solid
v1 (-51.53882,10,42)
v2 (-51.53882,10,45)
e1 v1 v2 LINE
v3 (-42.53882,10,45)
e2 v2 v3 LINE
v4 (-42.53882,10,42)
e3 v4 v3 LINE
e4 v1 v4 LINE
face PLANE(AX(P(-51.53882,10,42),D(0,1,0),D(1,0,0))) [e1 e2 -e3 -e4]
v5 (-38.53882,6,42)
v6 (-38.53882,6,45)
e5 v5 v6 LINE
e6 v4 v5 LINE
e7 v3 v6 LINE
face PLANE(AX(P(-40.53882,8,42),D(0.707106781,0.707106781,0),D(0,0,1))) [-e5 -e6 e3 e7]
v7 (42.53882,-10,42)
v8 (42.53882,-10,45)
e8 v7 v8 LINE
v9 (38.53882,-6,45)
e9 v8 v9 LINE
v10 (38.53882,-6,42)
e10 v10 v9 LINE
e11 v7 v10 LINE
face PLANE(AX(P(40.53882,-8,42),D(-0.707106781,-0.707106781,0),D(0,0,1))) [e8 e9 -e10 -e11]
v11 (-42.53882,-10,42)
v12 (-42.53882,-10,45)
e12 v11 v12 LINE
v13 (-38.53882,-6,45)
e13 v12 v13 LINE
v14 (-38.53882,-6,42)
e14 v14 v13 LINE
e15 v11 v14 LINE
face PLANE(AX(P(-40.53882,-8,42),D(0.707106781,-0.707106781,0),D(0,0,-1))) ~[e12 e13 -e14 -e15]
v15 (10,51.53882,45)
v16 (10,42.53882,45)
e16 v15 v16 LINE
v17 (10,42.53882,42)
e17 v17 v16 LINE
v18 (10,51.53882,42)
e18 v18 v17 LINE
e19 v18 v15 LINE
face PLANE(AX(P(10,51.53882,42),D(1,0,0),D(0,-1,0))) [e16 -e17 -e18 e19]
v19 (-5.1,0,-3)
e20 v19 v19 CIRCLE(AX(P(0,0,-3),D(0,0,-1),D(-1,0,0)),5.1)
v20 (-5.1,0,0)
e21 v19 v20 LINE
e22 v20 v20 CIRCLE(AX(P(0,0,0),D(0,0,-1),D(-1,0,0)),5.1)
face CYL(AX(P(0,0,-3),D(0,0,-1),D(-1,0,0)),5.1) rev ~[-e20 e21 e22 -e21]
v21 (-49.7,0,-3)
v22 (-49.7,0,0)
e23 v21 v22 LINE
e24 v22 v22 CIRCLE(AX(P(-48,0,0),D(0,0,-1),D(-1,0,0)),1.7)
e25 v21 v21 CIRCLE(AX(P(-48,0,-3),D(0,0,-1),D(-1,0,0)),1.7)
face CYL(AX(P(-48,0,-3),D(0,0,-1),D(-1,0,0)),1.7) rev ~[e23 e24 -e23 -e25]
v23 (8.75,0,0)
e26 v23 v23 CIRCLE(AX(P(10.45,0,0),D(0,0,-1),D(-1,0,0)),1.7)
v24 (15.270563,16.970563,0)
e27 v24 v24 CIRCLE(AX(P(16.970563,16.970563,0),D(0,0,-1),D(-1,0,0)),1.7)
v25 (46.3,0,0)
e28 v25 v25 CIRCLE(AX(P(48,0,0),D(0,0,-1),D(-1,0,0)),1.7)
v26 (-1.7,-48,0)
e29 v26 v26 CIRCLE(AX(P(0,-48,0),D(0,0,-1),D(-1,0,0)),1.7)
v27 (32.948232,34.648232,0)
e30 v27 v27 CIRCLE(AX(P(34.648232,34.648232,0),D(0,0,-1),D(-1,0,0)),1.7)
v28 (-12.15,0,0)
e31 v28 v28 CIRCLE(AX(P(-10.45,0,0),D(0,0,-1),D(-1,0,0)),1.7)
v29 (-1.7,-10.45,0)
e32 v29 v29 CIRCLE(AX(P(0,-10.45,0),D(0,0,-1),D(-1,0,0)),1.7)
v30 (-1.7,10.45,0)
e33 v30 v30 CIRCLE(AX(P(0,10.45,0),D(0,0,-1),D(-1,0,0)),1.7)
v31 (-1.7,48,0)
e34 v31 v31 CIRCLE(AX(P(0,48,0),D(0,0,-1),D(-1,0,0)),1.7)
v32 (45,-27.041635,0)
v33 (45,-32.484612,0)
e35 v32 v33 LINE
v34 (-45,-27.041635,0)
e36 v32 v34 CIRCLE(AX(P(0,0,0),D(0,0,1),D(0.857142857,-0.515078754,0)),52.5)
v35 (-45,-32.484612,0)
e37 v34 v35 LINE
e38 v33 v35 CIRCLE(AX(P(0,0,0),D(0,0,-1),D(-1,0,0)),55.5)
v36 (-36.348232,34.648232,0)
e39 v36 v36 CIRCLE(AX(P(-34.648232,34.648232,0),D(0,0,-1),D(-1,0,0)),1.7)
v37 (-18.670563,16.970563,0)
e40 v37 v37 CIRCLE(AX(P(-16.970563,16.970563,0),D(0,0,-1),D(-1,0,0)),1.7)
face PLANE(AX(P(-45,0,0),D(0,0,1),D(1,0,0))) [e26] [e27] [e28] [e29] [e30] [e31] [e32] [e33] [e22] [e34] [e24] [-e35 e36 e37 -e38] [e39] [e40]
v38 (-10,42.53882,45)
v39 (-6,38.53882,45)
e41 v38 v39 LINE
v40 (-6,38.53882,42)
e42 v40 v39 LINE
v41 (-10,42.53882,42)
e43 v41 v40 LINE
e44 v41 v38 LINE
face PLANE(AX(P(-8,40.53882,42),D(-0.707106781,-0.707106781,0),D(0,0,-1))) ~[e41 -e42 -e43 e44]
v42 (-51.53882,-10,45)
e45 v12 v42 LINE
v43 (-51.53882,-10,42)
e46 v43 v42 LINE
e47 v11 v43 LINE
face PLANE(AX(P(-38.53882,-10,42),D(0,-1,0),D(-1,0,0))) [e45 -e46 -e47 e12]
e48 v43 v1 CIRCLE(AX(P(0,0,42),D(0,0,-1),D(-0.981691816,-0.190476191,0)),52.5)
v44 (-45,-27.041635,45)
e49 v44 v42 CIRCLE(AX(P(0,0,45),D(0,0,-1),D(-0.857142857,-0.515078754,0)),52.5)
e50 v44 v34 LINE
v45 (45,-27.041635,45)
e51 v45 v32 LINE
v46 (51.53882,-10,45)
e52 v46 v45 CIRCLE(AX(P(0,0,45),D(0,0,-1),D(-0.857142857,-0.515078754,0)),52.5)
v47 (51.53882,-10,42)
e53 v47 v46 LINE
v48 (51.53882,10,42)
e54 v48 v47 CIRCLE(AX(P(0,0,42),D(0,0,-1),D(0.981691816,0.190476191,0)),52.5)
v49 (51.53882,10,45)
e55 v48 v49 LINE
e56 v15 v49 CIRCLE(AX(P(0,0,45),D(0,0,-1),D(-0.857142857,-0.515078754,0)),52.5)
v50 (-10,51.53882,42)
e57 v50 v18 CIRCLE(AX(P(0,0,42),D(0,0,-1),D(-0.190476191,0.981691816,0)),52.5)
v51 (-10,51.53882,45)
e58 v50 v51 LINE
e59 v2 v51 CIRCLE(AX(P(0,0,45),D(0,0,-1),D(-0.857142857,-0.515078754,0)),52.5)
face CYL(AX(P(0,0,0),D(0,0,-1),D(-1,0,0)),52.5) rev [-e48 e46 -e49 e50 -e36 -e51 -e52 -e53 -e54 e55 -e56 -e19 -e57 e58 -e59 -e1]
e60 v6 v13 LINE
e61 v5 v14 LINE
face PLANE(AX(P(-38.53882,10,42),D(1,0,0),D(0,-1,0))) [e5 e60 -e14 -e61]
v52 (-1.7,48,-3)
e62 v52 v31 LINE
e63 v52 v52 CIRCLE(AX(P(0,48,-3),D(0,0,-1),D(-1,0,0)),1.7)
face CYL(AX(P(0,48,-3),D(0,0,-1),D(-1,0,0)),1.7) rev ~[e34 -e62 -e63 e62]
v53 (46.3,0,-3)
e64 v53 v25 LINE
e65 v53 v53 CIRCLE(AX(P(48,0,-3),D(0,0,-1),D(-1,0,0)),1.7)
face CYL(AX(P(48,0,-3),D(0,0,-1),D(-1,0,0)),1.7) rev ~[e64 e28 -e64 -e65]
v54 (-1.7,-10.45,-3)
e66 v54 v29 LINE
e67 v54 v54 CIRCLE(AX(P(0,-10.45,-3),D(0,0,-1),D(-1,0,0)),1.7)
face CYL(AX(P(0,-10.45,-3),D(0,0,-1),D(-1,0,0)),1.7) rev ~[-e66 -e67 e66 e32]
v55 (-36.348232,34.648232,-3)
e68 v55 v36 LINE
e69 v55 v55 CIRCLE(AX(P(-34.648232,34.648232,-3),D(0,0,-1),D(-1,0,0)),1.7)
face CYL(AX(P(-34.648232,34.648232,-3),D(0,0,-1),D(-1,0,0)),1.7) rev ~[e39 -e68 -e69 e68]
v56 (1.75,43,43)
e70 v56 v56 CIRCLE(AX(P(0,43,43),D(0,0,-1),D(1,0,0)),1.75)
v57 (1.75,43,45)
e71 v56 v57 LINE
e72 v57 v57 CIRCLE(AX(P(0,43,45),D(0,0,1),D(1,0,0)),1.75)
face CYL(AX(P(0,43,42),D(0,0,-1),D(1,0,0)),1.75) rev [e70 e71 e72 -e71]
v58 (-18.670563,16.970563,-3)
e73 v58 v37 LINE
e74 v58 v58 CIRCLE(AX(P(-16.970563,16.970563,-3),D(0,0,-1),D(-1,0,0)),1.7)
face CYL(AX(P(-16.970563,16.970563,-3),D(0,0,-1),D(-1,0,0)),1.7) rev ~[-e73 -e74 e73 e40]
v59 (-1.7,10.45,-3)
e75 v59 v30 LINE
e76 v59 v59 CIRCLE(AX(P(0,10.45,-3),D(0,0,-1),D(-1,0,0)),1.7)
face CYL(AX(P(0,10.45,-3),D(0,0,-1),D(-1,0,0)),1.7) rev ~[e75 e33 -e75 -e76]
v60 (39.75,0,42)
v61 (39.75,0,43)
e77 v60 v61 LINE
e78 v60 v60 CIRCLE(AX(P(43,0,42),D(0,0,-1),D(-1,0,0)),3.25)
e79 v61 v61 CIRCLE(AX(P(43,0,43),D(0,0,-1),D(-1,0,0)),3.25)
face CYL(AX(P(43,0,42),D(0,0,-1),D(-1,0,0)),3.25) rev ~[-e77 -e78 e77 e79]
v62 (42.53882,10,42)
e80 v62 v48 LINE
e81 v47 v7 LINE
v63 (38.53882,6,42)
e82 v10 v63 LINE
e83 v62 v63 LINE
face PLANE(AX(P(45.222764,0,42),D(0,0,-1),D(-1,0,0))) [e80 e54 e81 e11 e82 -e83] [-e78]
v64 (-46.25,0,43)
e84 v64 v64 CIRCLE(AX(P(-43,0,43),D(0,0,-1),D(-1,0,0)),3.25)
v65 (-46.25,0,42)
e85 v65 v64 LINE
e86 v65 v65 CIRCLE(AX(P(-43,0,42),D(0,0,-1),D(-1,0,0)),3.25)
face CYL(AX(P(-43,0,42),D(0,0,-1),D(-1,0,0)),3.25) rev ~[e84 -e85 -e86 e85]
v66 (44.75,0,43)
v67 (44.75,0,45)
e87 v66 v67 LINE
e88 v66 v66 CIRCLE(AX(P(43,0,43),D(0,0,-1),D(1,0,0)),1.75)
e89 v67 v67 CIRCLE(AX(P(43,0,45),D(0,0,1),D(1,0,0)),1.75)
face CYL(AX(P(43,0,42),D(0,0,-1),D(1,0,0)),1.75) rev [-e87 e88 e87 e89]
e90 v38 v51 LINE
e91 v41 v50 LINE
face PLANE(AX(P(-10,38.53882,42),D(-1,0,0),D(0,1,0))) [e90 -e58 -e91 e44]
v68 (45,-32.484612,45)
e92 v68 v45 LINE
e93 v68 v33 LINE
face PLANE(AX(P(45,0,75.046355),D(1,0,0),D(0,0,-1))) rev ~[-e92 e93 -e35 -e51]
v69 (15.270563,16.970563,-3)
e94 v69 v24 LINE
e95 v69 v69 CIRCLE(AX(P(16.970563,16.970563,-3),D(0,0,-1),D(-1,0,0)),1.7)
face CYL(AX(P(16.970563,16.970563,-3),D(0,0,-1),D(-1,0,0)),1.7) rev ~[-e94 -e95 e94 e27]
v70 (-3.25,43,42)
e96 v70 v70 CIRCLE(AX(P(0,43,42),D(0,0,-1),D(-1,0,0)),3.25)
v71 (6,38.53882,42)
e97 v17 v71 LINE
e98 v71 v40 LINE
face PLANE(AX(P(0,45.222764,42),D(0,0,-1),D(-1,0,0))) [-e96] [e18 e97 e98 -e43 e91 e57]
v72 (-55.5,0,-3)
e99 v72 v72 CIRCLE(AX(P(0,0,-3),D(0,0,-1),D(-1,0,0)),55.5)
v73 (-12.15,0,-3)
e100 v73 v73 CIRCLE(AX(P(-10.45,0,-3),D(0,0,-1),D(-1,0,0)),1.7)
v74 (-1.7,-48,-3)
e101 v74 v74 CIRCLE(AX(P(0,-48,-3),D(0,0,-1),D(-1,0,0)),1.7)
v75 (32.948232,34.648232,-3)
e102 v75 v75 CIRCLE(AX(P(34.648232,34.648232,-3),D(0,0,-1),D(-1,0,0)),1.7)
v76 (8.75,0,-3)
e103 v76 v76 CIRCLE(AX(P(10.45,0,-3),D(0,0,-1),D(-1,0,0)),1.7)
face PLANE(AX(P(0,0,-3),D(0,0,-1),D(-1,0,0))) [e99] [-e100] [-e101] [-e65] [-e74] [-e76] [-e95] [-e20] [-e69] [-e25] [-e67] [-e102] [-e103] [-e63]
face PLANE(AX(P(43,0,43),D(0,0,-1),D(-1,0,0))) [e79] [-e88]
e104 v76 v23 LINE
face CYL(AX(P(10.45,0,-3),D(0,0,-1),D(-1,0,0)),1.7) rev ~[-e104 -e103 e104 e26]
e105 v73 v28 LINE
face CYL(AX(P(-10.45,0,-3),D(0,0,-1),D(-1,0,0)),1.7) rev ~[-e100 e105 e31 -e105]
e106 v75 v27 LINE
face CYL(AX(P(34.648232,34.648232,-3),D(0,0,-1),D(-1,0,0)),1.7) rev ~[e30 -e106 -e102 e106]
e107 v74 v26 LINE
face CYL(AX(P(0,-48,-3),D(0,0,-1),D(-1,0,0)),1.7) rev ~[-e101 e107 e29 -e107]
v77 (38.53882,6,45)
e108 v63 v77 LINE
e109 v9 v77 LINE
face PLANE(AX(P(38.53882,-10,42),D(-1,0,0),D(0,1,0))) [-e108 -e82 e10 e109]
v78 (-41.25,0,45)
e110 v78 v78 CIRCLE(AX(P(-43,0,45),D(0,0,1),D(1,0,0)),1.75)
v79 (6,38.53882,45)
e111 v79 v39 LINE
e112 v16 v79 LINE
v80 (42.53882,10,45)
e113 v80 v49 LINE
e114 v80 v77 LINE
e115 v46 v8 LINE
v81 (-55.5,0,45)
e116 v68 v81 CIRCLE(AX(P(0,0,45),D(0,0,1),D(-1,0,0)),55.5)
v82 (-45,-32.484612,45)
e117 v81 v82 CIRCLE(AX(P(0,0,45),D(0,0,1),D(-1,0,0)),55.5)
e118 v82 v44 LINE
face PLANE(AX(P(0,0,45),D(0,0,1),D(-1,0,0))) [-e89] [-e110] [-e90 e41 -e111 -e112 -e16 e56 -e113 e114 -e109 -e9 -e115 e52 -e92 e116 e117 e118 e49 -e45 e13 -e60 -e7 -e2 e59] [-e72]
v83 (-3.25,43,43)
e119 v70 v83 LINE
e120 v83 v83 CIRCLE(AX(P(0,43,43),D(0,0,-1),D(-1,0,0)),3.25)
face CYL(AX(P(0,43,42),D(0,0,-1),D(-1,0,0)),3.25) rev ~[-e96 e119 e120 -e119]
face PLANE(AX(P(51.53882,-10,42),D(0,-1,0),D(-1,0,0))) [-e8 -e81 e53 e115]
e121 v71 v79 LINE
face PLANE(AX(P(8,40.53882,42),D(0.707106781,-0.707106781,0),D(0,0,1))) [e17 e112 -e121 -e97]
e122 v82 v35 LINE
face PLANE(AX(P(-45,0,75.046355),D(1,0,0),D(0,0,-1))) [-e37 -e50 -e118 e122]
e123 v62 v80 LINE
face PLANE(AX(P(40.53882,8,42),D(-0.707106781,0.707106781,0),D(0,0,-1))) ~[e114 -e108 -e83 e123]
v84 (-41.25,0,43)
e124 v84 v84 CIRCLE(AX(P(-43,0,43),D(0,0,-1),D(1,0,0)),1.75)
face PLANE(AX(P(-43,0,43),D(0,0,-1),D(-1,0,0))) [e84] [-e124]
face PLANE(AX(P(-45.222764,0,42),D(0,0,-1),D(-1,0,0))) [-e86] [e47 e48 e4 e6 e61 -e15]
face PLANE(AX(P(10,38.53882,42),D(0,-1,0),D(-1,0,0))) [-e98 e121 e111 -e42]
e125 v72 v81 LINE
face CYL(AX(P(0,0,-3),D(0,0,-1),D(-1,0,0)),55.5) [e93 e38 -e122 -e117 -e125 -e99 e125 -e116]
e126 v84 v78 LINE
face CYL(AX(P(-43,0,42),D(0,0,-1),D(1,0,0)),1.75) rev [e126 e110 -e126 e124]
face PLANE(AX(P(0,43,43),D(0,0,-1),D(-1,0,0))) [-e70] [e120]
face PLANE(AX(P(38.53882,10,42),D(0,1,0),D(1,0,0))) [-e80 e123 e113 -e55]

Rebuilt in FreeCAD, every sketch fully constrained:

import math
import FreeCAD as App
import Part
import Sketcher
from FreeCAD import Vector
Q = App.Units.Quantity


def edges_at(feature, points):
    """Names of the edges that pass closest to the given points."""
    edges = feature.Shape.Edges
    near = lambda p: min(range(len(edges)), key=lambda i: edges[i].distToShape(Part.Vertex(*p))[0])
    return sorted({f"Edge{near(p) + 1}" for p in points})


def add_polygon(sketch, points):
    """Adds a closed chain of lines whose ends are joined by coincident constraints."""
    first, n = sketch.GeometryCount, len(points)
    for a, b in zip(points, points[1:] + points[:1]):
        sketch.addGeometry(Part.LineSegment(App.Vector(*a, 0), App.Vector(*b, 0)), False)
    for i in range(n):
        sketch.addConstraint(Sketcher.Constraint("Coincident", first + i, 2, first + (i + 1) % n, 1))

doc = App.newDocument("Part")
body = doc.addObject("PartDesign::Body", "Body")

# Sketch on XY plane
sketch1 = body.newObject("Sketcher::SketchObject", "Sketch")
sketch1.AttachmentSupport = (doc.getObject("XY_Plane"), [""])
sketch1.MapMode = "FlatFace"
sketch1.addGeometry([
    Part.Circle(Vector(0, 0, 0), Vector(0, 0, 1), 56),
    Part.Circle(Vector(0, 0, 0), Vector(0, 0, 1), 52),
], False)
sketch1.addConstraint([
    Sketcher.Constraint("Coincident", 0, 3, -1, 1),
    Sketcher.Constraint("Coincident", 1, 3, -1, 1),
    Sketcher.Constraint("Diameter", 0, Q("111 mm")),
    Sketcher.Constraint("Diameter", 1, Q("105 mm")),
])
pad1 = body.newObject("PartDesign::Pad", "Pad")
pad1.Profile = sketch1
pad1.Length = 45

# Sketch on XY plane
sketch2 = body.newObject("Sketcher::SketchObject", "Sketch001")
sketch2.AttachmentSupport = (doc.getObject("XY_Plane"), [""])
sketch2.MapMode = "FlatFace"
sketch2.AttachmentOffset = App.Placement(Vector(0, 0, -3), App.Rotation())
sketch2.addGeometry([
    Part.Circle(Vector(0, 0, 0), Vector(0, 0, 1), 55.5),  # 0
    Part.Circle(Vector(0, -10.4, 0), Vector(0, 0, 1), 1.7),  # 1
    Part.Circle(Vector(10.4, 0, 0), Vector(0, 0, 1), 1.7),  # 2
    Part.Circle(Vector(0, 0, 0), Vector(0, 0, 1), 5.1),  # 3
    Part.Circle(Vector(-10.4, 0, 0), Vector(0, 0, 1), 1.7),  # 4
    Part.Circle(Vector(0, 10.4, 0), Vector(0, 0, 1), 1.7),  # 5
], False)
sketch2.addConstraint([
    Sketcher.Constraint("Coincident", 0, 3, -1, 1),
    Sketcher.Constraint("Coincident", 3, 3, -1, 1),
    Sketcher.Constraint("Equal", 1, 2),
    Sketcher.Constraint("Equal", 2, 4),
    Sketcher.Constraint("Equal", 4, 5),
    Sketcher.Constraint("Symmetric", 2, 3, 4, 3, -1, 1),
    Sketcher.Constraint("Symmetric", 1, 3, 5, 3, -1, 1),
    Sketcher.Constraint("PointOnObject", 1, 3, -2),
    Sketcher.Constraint("PointOnObject", 2, 3, -1),
    Sketcher.Constraint("Diameter", 0, Q("111 mm")),
    Sketcher.Constraint("Diameter", 1, Q("3.4 mm")),
    Sketcher.Constraint("Diameter", 3, Q("10.2 mm")),
    Sketcher.Constraint("DistanceX", 4, 3, 2, 3, Q("20.9 mm")),
    Sketcher.Constraint("DistanceY", 1, 3, 5, 3, Q("20.9 mm")),
])
pad2 = body.newObject("PartDesign::Pad", "Pad001")
pad2.Profile = sketch2
pad2.Length = 3

# Sketch on XZ plane
sketch3 = body.newObject("Sketcher::SketchObject", "Sketch002")
sketch3.AttachmentSupport = (doc.getObject("XZ_Plane"), [""])
sketch3.MapMode = "FlatFace"
add_polygon(sketch3, [(-45, 0), (-45, 75), (45, 75), (45, 0)])  # lines 0-3
sketch3.addConstraint([
    Sketcher.Constraint("Vertical", 0),
    Sketcher.Constraint("Horizontal", 1),
    Sketcher.Constraint("Vertical", 2),
    Sketcher.Constraint("Horizontal", 3),
    Sketcher.Constraint("Symmetric", 2, 2, 3, 2, -1, 1),
    Sketcher.Constraint("DistanceX", 1, 1, 1, 2, Q("90 mm")),
    Sketcher.Constraint("DistanceY", 0, 1, 0, 2, Q("75.046355 mm")),
])
pocket1 = body.newObject("PartDesign::Pocket", "Pocket")
pocket1.Profile = sketch3
pocket1.Type = "ThroughAll"
pocket1.Reversed = True

# Sketch on XY plane
sketch4 = body.newObject("Sketcher::SketchObject", "Sketch003")
sketch4.AttachmentSupport = (doc.getObject("XY_Plane"), [""])
sketch4.MapMode = "FlatFace"
sketch4.AttachmentOffset = App.Placement(Vector(0, 0, 42), App.Rotation())
sketch4.addGeometry([
    Part.LineSegment(Vector(38.5, -10, 0), Vector(51.5, -10, 0)),  # 0
    Part.ArcOfCircle(Part.Circle(Vector(0, 0, 0), Vector(0, 0, 1), 52.5), math.radians(-11), math.radians(11)),  # 1
    Part.LineSegment(Vector(51.5, 10, 0), Vector(38.5, 10, 0)),  # 2
    Part.LineSegment(Vector(38.5, 10, 0), Vector(38.5, -10, 0)),  # 3
    Part.Circle(Vector(43, 0, 0), Vector(0, 0, 1), 1.8),  # 4
    Part.LineSegment(Vector(-38.5, 10, 0), Vector(-51.5, 10, 0)),  # 5
    Part.ArcOfCircle(Part.Circle(Vector(0, 0, 0), Vector(0, 0, 1), 52.5), math.radians(169), math.radians(191)),  # 6
    Part.LineSegment(Vector(-51.5, -10, 0), Vector(-38.5, -10, 0)),  # 7
    Part.LineSegment(Vector(-38.5, -10, 0), Vector(-38.5, 10, 0)),  # 8
    Part.Circle(Vector(-43, 0, 0), Vector(0, 0, 1), 1.8),  # 9
    Part.LineSegment(Vector(10, 38.5, 0), Vector(10, 51.5, 0)),  # 10
    Part.ArcOfCircle(Part.Circle(Vector(0, 0, 0), Vector(0, 0, 1), 52.5), math.radians(79), math.radians(101)),  # 11
    Part.LineSegment(Vector(-10, 51.5, 0), Vector(-10, 38.5, 0)),  # 12
    Part.LineSegment(Vector(-10, 38.5, 0), Vector(10, 38.5, 0)),  # 13
    Part.Circle(Vector(0, 43, 0), Vector(0, 0, 1), 1.8),  # 14
], False)
sketch4.addConstraint([
    Sketcher.Constraint("Coincident", 0, 2, 1, 1),
    Sketcher.Constraint("Coincident", 1, 2, 2, 1),
    Sketcher.Constraint("Coincident", 2, 2, 3, 1),
    Sketcher.Constraint("Coincident", 3, 2, 0, 1),
    Sketcher.Constraint("Coincident", 5, 2, 6, 1),
    Sketcher.Constraint("Coincident", 6, 2, 7, 1),
    Sketcher.Constraint("Coincident", 7, 2, 8, 1),
    Sketcher.Constraint("Coincident", 8, 2, 5, 1),
    Sketcher.Constraint("Coincident", 10, 2, 11, 1),
    Sketcher.Constraint("Coincident", 11, 2, 12, 1),
    Sketcher.Constraint("Coincident", 12, 2, 13, 1),
    Sketcher.Constraint("Coincident", 13, 2, 10, 1),
    Sketcher.Constraint("Horizontal", 0),
    Sketcher.Constraint("Horizontal", 2),
    Sketcher.Constraint("Vertical", 3),
    Sketcher.Constraint("Horizontal", 5),
    Sketcher.Constraint("Horizontal", 7),
    Sketcher.Constraint("Vertical", 8),
    Sketcher.Constraint("Vertical", 10),
    Sketcher.Constraint("Vertical", 12),
    Sketcher.Constraint("Horizontal", 13),
    Sketcher.Constraint("Coincident", 1, 3, -1, 1),
    Sketcher.Constraint("Coincident", 6, 3, -1, 1),
    Sketcher.Constraint("Coincident", 11, 3, -1, 1),
    Sketcher.Constraint("Equal", 1, 6),
    Sketcher.Constraint("Equal", 4, 9),
    Sketcher.Constraint("Equal", 6, 11),
    Sketcher.Constraint("Equal", 9, 14),
    Sketcher.Constraint("Symmetric", 4, 3, 9, 3, -1, 1),
    Sketcher.Constraint("Symmetric", 2, 2, 7, 2, -1, 1),
    Sketcher.Constraint("PointOnObject", 4, 3, -1),
    Sketcher.Constraint("PointOnObject", 14, 3, -2),
    Sketcher.Constraint("Horizontal", 2, 2, 5, 2),
    Sketcher.Constraint("Horizontal", 3, 2, 6, 2),
    Sketcher.Constraint("Horizontal", 10, 2, 11, 2),
    Sketcher.Constraint("Equal", 13, 3),
    Sketcher.Constraint("Equal", 7, 10),
    Sketcher.Constraint("Diameter", 4, Q("3.5 mm")),
    Sketcher.Constraint("Radius", 1, Q("52.5 mm")),
    Sketcher.Constraint("DistanceX", 0, 1, 0, 2, Q("13 mm")),
    Sketcher.Constraint("DistanceX", 13, 1, 13, 2, Q("20 mm")),
    Sketcher.Constraint("DistanceX", -1, 1, 4, 3, Q("43 mm")),
    Sketcher.Constraint("DistanceY", -1, 1, 14, 3, Q("43 mm")),
])
pad3 = body.newObject("PartDesign::Pad", "Pad002")
pad3.Profile = sketch4
pad3.Length = 3
doc.recompute()

chamfer = body.newObject("PartDesign::Chamfer", "Chamfer")
chamfer.Base = (pad3, edges_at(pad3, [
    (38.539, -10, 43.5),
    (38.539, 10, 43.5),
    (-38.539, 10, 43.5),
    (-38.539, -10, 43.5),
    (10, 38.539, 43.5),
    (-10, 38.539, 43.5),
]))
chamfer.Size = 4

# Sketch on XY plane
sketch5 = body.newObject("Sketcher::SketchObject", "Sketch004")
sketch5.AttachmentSupport = (doc.getObject("XY_Plane"), [""])
sketch5.MapMode = "FlatFace"
sketch5.AttachmentOffset = App.Placement(Vector(0, 0, -3), App.Rotation())
sketch5.addGeometry([
    Part.Circle(Vector(-34.6, 34.6, 0), Vector(0, 0, 1), 1.7),  # 0
    Part.Circle(Vector(-17, 17, 0), Vector(0, 0, 1), 1.7),  # 1
    Part.Circle(Vector(17, 17, 0), Vector(0, 0, 1), 1.7),  # 2
    Part.Circle(Vector(34.6, 34.6, 0), Vector(0, 0, 1), 1.7),  # 3
    Part.Circle(Vector(0, -48, 0), Vector(0, 0, 1), 1.7),  # 4
    Part.Circle(Vector(48, 0, 0), Vector(0, 0, 1), 1.7),  # 5
    Part.Circle(Vector(0, 48, 0), Vector(0, 0, 1), 1.7),  # 6
    Part.Circle(Vector(-48, 0, 0), Vector(0, 0, 1), 1.7),  # 7
], False)
sketch5.addConstraint([
    Sketcher.Constraint("Equal", 0, 1),
    Sketcher.Constraint("Equal", 1, 2),
    Sketcher.Constraint("Equal", 2, 3),
    Sketcher.Constraint("Equal", 3, 4),
    Sketcher.Constraint("Equal", 4, 5),
    Sketcher.Constraint("Equal", 5, 6),
    Sketcher.Constraint("Equal", 6, 7),
    Sketcher.Constraint("Symmetric", 4, 3, 6, 3, -1, 1),
    Sketcher.Constraint("Symmetric", 5, 3, 7, 3, -1, 1),
    Sketcher.Constraint("Symmetric", 1, 3, 2, 3, -2),
    Sketcher.Constraint("Symmetric", 0, 3, 3, 3, -2),
    Sketcher.Constraint("PointOnObject", 4, 3, -2),
    Sketcher.Constraint("PointOnObject", 5, 3, -1),
    Sketcher.Constraint("Diameter", 0, Q("3.4 mm")),
    Sketcher.Constraint("DistanceY", 4, 3, -1, 1, Q("48 mm")),
    Sketcher.Constraint("DistanceX", -1, 1, 5, 3, Q("48 mm")),
    Sketcher.Constraint("DistanceX", 0, 3, 1, 3, Q("17.67767 mm")),
    Sketcher.Constraint("DistanceY", 1, 3, 0, 3, Q("17.67767 mm")),
    Sketcher.Constraint("DistanceX", 0, 3, -1, 1, Q("34.648232 mm")),
    Sketcher.Constraint("DistanceY", -1, 1, 0, 3, Q("34.648232 mm")),
])
pocket2 = body.newObject("PartDesign::Pocket", "Pocket001")
pocket2.Profile = sketch5
pocket2.Length = 10
pocket2.Reversed = True

# Sketch on XY plane
sketch6 = body.newObject("Sketcher::SketchObject", "Sketch005")
sketch6.AttachmentSupport = (doc.getObject("XY_Plane"), [""])
sketch6.MapMode = "FlatFace"
sketch6.AttachmentOffset = App.Placement(Vector(0, 0, 42), App.Rotation())
sketch6.addGeometry([
    Part.Circle(Vector(43, 0, 0), Vector(0, 0, 1), 3.2),
    Part.Circle(Vector(0, 43, 0), Vector(0, 0, 1), 3.2),
    Part.Circle(Vector(-43, 0, 0), Vector(0, 0, 1), 3.2),
], False)
sketch6.addConstraint([
    Sketcher.Constraint("Equal", 0, 1),
    Sketcher.Constraint("Equal", 1, 2),
    Sketcher.Constraint("Symmetric", 0, 3, 2, 3, -1, 1),
    Sketcher.Constraint("PointOnObject", 0, 3, -1),
    Sketcher.Constraint("PointOnObject", 1, 3, -2),
    Sketcher.Constraint("Diameter", 0, Q("6.5 mm")),
    Sketcher.Constraint("DistanceX", -1, 1, 0, 3, Q("43 mm")),
    Sketcher.Constraint("DistanceY", -1, 1, 1, 3, Q("43 mm")),
])
pocket3 = body.newObject("PartDesign::Pocket", "Pocket002")
pocket3.Profile = sketch6
pocket3.Length = 1
pocket3.Reversed = True

doc.recompute()
